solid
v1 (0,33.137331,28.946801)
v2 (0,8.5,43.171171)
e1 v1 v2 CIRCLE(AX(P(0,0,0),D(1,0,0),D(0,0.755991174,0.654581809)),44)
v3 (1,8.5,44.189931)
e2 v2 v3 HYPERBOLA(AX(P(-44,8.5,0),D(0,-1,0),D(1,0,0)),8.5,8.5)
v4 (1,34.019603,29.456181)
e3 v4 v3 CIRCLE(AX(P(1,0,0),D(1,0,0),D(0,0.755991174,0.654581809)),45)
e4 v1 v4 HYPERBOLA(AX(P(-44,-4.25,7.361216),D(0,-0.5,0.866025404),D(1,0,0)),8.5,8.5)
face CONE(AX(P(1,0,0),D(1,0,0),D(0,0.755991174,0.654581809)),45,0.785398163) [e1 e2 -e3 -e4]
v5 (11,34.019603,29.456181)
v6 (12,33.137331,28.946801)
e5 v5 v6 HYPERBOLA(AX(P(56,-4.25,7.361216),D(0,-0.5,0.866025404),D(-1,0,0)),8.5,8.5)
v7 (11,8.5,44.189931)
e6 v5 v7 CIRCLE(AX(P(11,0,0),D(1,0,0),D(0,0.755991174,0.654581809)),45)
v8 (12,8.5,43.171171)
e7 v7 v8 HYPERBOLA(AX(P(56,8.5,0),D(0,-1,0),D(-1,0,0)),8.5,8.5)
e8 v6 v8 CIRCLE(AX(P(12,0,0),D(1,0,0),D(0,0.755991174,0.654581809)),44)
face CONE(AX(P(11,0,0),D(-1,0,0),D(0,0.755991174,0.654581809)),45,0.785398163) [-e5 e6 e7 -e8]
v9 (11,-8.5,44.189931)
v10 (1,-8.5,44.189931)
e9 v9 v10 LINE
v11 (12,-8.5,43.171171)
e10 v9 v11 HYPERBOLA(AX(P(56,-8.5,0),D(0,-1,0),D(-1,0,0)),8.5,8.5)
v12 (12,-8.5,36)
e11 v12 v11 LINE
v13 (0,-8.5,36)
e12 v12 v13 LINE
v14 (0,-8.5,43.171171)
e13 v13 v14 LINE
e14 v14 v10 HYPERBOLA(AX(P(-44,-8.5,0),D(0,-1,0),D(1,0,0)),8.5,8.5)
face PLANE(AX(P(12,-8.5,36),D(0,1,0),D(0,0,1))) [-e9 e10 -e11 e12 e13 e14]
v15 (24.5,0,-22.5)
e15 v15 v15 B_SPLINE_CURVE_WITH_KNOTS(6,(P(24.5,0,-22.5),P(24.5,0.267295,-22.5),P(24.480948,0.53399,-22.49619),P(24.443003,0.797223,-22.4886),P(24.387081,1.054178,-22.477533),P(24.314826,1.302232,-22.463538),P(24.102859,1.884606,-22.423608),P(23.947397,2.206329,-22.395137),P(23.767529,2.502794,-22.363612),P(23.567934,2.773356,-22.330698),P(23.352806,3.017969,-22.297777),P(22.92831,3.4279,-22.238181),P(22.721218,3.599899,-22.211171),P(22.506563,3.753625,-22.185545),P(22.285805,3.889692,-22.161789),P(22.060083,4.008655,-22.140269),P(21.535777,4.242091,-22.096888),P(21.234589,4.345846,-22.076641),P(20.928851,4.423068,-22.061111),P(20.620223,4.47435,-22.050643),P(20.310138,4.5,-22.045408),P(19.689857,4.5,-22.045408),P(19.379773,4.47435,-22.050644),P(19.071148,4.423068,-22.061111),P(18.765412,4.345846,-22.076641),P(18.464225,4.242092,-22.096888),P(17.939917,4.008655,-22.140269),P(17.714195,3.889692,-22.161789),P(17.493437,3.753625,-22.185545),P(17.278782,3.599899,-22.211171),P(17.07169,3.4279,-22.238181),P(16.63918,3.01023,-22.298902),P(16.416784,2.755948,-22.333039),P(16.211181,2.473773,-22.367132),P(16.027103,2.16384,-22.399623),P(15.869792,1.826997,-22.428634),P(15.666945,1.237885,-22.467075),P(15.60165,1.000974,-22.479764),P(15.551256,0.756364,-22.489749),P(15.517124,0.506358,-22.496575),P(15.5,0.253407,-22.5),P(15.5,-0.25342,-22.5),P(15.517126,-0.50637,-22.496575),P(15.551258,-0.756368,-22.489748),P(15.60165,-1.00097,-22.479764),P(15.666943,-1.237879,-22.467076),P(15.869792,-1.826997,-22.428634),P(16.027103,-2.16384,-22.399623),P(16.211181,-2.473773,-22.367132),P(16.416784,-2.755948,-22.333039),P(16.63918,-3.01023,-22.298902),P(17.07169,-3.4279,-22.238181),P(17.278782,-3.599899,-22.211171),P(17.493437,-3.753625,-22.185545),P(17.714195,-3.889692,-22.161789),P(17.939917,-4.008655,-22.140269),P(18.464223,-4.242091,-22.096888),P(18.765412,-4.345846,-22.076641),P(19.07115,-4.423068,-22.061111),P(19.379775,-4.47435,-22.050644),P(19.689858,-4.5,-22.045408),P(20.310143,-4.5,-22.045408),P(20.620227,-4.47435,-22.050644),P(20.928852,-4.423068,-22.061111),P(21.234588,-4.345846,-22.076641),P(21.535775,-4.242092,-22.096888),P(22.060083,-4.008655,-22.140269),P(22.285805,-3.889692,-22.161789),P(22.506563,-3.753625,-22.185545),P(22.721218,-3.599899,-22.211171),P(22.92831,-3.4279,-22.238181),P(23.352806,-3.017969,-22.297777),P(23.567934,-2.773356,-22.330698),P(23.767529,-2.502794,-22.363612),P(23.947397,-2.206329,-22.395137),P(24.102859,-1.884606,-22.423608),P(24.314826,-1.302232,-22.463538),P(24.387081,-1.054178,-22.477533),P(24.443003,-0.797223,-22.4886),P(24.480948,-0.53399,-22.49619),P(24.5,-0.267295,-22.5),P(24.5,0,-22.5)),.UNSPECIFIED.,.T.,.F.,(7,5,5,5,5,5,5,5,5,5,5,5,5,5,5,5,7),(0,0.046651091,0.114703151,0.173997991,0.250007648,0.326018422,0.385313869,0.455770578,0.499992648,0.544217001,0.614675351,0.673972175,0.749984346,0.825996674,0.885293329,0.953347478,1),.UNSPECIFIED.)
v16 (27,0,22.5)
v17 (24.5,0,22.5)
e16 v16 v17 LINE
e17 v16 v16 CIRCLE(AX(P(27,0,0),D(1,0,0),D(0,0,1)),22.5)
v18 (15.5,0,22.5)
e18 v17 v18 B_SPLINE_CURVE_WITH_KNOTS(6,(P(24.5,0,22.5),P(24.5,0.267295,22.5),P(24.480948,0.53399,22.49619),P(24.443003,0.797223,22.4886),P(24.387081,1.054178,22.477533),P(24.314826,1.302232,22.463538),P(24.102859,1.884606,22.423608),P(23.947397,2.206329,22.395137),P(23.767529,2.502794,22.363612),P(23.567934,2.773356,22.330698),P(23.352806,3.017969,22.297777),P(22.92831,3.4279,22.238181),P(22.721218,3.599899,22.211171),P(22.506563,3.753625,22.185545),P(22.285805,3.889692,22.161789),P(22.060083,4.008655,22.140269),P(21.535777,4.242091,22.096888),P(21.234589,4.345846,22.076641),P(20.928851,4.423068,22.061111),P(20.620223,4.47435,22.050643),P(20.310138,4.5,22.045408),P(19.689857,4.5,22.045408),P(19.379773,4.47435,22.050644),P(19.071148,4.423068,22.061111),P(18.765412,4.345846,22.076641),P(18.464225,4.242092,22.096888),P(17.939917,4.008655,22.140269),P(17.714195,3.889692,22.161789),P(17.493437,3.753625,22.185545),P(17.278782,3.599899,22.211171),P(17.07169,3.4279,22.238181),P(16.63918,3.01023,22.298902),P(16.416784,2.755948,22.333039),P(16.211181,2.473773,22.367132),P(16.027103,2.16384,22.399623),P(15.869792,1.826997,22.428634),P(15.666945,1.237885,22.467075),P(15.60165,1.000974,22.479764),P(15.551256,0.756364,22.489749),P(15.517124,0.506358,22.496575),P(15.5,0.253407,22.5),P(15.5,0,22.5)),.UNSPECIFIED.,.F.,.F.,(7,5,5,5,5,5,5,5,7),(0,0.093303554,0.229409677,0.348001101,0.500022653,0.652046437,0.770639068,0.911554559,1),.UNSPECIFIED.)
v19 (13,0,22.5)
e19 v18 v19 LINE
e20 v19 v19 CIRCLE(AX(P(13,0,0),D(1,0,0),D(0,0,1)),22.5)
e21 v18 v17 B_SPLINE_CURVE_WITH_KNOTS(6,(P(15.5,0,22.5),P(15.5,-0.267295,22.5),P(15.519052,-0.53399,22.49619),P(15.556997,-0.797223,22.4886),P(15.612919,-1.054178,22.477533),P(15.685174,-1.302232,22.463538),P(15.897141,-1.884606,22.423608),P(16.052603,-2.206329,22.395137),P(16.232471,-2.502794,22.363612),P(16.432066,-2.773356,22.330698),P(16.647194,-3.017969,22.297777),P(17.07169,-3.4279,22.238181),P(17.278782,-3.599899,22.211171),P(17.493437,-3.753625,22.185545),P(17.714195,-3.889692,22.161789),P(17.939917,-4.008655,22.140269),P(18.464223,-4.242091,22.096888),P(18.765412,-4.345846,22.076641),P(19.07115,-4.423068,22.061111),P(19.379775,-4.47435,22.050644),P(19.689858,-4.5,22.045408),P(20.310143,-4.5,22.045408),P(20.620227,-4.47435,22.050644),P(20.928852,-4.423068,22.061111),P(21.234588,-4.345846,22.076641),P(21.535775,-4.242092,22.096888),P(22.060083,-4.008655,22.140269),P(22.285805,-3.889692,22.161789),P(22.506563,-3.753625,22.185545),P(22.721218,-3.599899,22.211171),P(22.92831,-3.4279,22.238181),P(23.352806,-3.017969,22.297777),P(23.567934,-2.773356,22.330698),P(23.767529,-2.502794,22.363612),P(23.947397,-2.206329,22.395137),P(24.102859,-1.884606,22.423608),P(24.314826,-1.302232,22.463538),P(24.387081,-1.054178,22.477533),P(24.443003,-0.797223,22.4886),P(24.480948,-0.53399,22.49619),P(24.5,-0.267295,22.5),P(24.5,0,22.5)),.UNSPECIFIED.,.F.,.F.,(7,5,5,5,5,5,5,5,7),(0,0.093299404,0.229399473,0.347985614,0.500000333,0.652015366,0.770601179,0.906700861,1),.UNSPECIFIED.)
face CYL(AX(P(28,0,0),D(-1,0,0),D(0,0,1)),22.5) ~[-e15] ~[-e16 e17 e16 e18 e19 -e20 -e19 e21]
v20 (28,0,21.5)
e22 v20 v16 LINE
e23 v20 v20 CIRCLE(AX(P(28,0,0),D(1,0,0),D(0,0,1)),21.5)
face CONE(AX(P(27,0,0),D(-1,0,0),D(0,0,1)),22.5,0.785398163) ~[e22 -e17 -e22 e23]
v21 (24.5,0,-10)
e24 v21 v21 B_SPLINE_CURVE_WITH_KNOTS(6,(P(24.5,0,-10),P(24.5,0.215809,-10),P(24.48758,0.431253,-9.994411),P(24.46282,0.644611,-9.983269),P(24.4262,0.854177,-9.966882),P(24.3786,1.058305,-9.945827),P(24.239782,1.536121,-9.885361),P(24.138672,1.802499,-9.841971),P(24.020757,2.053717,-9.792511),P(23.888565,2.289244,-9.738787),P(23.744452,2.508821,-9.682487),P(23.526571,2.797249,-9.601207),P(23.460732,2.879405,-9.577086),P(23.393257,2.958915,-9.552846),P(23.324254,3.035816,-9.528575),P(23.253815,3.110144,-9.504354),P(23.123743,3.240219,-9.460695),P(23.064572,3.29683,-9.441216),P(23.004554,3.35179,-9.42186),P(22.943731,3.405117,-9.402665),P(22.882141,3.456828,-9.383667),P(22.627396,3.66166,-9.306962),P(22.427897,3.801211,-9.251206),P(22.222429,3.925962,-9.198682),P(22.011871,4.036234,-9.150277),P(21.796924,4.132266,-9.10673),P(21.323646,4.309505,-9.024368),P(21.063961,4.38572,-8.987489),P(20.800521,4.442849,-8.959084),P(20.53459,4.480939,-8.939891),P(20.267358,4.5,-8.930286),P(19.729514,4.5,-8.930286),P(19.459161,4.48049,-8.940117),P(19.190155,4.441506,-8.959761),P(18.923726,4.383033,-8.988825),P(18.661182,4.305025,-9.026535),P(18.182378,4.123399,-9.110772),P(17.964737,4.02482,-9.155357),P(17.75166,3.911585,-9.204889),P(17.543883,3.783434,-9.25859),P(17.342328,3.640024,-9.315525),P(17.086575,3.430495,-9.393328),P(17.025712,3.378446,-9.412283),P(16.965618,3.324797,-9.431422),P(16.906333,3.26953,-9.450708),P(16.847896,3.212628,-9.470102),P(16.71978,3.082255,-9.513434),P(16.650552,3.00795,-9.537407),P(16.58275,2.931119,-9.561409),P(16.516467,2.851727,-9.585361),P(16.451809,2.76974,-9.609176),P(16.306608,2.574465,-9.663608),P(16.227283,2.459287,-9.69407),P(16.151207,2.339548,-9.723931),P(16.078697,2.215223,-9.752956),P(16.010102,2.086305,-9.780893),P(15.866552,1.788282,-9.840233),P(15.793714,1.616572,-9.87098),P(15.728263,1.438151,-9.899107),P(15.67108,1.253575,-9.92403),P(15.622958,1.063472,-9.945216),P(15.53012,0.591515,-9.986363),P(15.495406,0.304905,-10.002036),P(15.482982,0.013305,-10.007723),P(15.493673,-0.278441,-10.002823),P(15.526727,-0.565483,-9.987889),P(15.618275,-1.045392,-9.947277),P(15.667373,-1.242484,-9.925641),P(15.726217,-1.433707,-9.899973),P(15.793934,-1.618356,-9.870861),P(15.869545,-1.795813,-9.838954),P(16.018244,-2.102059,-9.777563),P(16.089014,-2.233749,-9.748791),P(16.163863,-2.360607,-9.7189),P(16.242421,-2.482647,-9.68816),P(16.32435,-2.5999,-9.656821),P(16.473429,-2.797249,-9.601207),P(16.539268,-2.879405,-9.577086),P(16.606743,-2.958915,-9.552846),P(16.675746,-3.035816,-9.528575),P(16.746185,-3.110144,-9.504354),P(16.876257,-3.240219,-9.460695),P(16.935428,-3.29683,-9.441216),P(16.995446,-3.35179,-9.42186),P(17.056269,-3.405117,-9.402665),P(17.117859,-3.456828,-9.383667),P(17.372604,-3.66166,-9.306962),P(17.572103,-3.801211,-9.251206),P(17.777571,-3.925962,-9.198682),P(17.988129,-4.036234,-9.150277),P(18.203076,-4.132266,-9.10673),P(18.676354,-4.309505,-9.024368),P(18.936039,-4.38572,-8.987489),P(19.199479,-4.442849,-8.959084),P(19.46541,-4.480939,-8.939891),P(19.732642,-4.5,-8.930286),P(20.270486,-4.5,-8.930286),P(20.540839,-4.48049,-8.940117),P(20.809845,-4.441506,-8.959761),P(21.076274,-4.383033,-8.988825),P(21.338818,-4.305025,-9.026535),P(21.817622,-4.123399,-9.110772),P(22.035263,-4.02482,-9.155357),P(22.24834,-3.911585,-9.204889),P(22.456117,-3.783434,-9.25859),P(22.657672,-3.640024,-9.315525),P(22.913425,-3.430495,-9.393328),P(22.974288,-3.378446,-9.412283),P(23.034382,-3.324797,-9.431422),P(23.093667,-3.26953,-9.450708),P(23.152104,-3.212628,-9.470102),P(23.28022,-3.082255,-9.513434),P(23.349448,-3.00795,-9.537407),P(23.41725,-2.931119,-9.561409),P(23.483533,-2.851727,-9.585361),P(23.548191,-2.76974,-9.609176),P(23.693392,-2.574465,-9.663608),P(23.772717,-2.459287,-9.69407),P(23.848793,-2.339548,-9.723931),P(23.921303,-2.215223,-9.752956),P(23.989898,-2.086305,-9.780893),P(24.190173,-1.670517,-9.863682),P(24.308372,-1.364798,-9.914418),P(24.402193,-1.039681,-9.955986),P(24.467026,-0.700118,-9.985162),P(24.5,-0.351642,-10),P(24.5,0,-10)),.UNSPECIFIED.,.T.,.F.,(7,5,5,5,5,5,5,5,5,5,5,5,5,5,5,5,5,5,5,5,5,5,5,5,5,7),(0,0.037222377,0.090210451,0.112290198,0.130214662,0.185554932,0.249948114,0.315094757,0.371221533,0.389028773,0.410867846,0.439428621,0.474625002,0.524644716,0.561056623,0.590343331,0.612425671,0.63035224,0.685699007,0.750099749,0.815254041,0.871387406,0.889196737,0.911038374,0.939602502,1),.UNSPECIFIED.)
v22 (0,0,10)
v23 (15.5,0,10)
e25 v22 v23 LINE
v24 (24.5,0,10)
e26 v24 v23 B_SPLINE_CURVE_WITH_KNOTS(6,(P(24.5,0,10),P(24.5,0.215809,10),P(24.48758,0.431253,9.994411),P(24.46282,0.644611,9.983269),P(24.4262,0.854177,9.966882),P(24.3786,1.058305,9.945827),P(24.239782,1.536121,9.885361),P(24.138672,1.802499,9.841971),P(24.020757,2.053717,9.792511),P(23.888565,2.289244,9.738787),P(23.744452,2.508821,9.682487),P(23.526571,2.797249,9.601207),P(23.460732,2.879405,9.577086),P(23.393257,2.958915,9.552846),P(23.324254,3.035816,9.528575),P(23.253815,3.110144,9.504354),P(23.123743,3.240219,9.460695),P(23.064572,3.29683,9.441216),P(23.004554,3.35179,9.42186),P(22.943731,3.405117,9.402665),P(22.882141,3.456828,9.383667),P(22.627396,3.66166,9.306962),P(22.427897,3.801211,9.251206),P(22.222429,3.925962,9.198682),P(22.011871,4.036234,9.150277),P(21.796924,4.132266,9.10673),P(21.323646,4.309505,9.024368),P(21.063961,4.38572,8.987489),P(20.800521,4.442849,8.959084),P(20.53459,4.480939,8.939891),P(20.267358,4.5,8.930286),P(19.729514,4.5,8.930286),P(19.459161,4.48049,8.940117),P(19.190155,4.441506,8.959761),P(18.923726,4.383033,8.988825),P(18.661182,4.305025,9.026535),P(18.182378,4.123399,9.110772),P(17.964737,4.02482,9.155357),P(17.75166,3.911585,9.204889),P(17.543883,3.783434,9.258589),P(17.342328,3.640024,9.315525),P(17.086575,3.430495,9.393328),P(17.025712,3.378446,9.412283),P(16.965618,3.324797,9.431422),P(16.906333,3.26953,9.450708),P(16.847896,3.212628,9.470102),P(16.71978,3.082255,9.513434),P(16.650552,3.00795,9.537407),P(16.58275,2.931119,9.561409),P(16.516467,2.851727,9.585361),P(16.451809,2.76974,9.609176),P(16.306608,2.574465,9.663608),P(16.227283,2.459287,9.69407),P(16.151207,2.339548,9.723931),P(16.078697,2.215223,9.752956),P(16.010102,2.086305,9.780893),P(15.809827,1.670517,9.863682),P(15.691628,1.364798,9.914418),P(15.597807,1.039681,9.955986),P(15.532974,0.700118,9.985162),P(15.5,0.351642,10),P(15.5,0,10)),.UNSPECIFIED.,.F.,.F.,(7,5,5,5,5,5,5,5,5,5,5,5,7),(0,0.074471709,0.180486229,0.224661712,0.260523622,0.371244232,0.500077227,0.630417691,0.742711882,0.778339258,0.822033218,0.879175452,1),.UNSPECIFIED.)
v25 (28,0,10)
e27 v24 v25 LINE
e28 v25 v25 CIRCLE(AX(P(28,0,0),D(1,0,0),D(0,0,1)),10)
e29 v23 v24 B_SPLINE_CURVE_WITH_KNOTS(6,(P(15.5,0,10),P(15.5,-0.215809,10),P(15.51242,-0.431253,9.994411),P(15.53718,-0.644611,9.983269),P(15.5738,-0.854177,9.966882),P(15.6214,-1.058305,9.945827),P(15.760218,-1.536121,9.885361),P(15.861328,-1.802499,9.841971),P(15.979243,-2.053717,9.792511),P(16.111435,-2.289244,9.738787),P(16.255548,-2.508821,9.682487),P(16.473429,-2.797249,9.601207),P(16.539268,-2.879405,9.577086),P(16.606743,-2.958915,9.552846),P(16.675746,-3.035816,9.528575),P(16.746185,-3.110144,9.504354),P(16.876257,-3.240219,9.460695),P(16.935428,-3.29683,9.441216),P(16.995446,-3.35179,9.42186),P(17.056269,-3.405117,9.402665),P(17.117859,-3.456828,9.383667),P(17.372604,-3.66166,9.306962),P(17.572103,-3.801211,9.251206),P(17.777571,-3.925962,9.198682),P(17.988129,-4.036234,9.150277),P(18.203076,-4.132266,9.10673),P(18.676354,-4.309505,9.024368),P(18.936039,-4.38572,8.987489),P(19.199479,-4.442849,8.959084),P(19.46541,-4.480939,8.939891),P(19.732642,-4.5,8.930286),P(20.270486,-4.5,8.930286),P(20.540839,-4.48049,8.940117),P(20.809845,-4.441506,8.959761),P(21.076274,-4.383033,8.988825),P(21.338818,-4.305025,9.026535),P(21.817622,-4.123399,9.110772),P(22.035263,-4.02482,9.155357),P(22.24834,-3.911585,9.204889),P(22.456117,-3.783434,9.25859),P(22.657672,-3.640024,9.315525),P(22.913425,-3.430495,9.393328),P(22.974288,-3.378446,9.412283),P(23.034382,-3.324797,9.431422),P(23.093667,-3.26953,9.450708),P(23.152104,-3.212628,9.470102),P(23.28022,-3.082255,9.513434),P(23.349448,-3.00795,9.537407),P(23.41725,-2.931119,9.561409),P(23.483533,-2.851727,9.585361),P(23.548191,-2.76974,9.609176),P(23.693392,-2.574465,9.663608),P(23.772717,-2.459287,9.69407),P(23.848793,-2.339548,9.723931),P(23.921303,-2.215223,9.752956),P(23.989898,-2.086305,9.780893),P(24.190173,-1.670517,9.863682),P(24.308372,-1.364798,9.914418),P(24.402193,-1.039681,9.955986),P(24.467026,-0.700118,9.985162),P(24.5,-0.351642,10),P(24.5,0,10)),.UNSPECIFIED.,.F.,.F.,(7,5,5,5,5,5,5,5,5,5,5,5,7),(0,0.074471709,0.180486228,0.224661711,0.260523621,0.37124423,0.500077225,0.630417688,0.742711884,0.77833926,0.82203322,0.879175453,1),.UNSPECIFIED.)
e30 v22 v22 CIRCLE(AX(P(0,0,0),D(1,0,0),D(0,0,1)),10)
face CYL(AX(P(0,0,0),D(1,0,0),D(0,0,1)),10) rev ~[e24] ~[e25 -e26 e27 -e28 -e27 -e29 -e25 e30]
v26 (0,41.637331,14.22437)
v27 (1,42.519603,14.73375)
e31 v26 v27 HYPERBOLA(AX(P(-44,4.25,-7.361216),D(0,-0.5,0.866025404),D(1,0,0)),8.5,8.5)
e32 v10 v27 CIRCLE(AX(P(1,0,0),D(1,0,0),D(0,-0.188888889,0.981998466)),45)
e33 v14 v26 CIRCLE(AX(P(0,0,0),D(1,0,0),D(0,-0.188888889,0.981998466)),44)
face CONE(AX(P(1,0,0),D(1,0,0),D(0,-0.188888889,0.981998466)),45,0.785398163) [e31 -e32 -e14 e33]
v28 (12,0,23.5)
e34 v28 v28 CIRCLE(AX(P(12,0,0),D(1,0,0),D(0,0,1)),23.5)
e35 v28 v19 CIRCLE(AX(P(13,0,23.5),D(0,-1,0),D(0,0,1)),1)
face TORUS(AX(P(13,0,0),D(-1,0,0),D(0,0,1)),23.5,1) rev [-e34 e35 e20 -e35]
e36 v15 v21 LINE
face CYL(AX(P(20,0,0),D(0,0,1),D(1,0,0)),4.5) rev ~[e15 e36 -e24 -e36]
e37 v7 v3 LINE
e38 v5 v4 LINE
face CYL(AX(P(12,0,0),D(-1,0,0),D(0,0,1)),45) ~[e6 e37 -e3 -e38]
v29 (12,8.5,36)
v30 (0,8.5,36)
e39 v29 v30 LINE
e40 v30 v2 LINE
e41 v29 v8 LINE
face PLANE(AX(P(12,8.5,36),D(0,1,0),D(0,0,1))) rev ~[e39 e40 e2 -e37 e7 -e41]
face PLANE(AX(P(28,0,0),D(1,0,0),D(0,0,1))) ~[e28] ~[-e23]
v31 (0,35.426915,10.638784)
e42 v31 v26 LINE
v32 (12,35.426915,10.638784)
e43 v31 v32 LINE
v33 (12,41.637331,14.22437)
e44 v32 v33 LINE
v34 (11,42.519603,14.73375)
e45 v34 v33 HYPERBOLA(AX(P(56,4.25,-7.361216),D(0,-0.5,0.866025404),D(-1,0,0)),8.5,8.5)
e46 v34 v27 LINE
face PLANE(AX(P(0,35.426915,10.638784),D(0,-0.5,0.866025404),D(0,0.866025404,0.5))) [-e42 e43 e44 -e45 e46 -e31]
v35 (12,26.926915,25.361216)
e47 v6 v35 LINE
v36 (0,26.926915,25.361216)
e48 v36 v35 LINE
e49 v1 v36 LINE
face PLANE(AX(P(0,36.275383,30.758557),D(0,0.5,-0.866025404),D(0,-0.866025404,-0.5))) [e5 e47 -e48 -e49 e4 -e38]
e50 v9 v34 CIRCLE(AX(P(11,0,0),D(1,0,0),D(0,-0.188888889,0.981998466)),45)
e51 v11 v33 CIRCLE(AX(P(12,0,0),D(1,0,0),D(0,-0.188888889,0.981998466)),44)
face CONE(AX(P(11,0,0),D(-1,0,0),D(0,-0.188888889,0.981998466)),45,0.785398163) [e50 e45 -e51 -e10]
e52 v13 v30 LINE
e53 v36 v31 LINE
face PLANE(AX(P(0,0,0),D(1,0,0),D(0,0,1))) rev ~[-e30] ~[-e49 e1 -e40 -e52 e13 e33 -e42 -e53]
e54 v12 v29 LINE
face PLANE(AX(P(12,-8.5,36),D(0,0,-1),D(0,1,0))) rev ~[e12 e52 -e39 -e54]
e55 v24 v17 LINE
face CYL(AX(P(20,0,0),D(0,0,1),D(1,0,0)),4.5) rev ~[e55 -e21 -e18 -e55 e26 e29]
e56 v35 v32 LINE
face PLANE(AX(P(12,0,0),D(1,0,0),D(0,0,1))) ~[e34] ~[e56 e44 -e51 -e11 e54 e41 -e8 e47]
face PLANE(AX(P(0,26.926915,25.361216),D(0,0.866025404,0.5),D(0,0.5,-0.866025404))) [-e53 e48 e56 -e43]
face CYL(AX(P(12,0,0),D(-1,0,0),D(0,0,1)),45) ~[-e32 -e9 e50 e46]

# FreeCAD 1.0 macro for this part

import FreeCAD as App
import Part
import Sketcher
Q = App.Units.Quantity


def edges_at(feature, points):
    """Names of the edges that pass closest to the given points."""
    edges = feature.Shape.Edges
    near = lambda p: min(range(len(edges)), key=lambda i: edges[i].distToShape(Part.Vertex(*p))[0])
    return sorted({f"Edge{near(p) + 1}" for p in points})


def add_polygon(sketch, points):
    """Adds a closed chain of lines whose ends are joined by coincident constraints."""
    first, n = sketch.GeometryCount, len(points)
    for a, b in zip(points, points[1:] + points[:1]):
        sketch.addGeometry(Part.LineSegment(App.Vector(*a, 0), App.Vector(*b, 0)), False)
    for i in range(n):
        sketch.addConstraint(Sketcher.Constraint("Coincident", first + i, 2, first + (i + 1) % n, 1))

doc = App.newDocument("Part")
body = doc.addObject("PartDesign::Body", "Body")

sketch1 = body.newObject("Sketcher::SketchObject", "Sketch")
sketch1.AttachmentSupport = (doc.getObject("XZ_Plane"), [""])
sketch1.MapMode = "FlatFace"
add_polygon(sketch1, [(0, 45), (0, 10), (28, 10), (28, 22), (12, 22), (12, 45)])
sketch1.addConstraint([
    Sketcher.Constraint("Vertical", 0),
    Sketcher.Constraint("Horizontal", 1),
    Sketcher.Constraint("Vertical", 2),
    Sketcher.Constraint("Horizontal", 3),
    Sketcher.Constraint("Vertical", 4),
    Sketcher.Constraint("Horizontal", 5),
    Sketcher.Constraint("PointOnObject", 0, 2, -2),
    Sketcher.Constraint("DistanceX", 1, 1, 1, 2, 28.0),
    Sketcher.Constraint("DistanceX", 3, 2, 3, 1, 16.0),
    Sketcher.Constraint("DistanceY", 0, 2, 0, 1, 35.0),
    Sketcher.Constraint("DistanceY", 2, 1, 2, 2, 12.5),
    Sketcher.Constraint("DistanceY", -1, 1, 0, 2, 10.0),
])
revolution = body.newObject("PartDesign::Revolution", "Revolution")
revolution.Profile = sketch1
revolution.ReferenceAxis = (sketch1, ["H_Axis"])
revolution.Angle = 360

sketch2 = body.newObject("Sketcher::SketchObject", "Sketch001")
sketch2.AttachmentSupport = (doc.getObject("XY_Plane"), [""])
sketch2.MapMode = "FlatFace"
sketch2.addGeometry(Part.Circle(App.Vector(20, 0, 0), App.Vector(0, 0, 1), 4.5), False)
sketch2.addConstraint([
    Sketcher.Constraint("PointOnObject", 0, 3, -1),
    Sketcher.Constraint("Diameter", 0, 9.0),
    Sketcher.Constraint("DistanceX", -1, 1, 0, 3, 20.0),
])
pocket1 = body.newObject("PartDesign::Pocket", "Pocket")
pocket1.Profile = sketch2
pocket1.Length = 50
pocket1.Midplane = True

sketch3 = body.newObject("Sketcher::SketchObject", "Sketch002")
sketch3.AttachmentSupport = (doc.getObject("YZ_Plane"), [""])
sketch3.MapMode = "FlatFace"
sketch3.AttachmentOffset = App.Placement(App.Vector(0, 0, 12), App.Rotation())
add_polygon(sketch3, [(-8, 50), (-8, 36), (8, 36), (8, 50)])
sketch3.addConstraint([
    Sketcher.Constraint("Vertical", 0),
    Sketcher.Constraint("Horizontal", 1),
    Sketcher.Constraint("Vertical", 2),
    Sketcher.Constraint("Horizontal", 3),
    Sketcher.Constraint("DistanceX", 1, 1, 1, 2, 17.0),
    Sketcher.Constraint("DistanceY", 0, 2, 0, 1, 14.0),
    Sketcher.Constraint("DistanceY", -1, 1, 0, 2, 36.0),
    Sketcher.Constraint("DistanceX", 0, 2, -1, 1, 8.5),
])
pocket2 = body.newObject("PartDesign::Pocket", "Pocket001")
pocket2.Profile = sketch3
pocket2.Length = 25

sketch4 = body.newObject("Sketcher::SketchObject", "Sketch003")
sketch4.AttachmentSupport = (doc.getObject("YZ_Plane"), [""])
sketch4.MapMode = "FlatFace"
add_polygon(sketch4, [(27, 25), (35, 11), (45, 16), (41, 23), (36, 31)])
sketch4.addConstraint([
    Sketcher.Constraint("Perpendicular", 0, 1),
    Sketcher.Constraint("Perpendicular", 1, 2),
    Sketcher.Constraint("Parallel", 2, 3),
    Sketcher.Constraint("Perpendicular", 3, 4),
    Sketcher.Constraint("Equal", 2, 3),
    Sketcher.Constraint("Angle", 0, Q("-60 deg")),
    Sketcher.Constraint("Distance", 0, 17.0),
    Sketcher.Constraint("Distance", 1, 10.794681),
    Sketcher.Constraint("DistanceY", -1, 1, 2, 2, 23.397341),
    Sketcher.Constraint("DistanceX", -1, 1, 0, 2, 35.426915),
])
pocket3 = body.newObject("PartDesign::Pocket", "Pocket002")
pocket3.Profile = sketch4
pocket3.Length = 25
pocket3.Reversed = True
doc.recompute()

chamfer = body.newObject("PartDesign::Chamfer", "Chamfer")
chamfer.Base = (pocket3, edges_at(pocket3, [
    (28, 0, -22.5),
    (12, 22.5, 38.971),
    (0, 22.5, 38.971),
    (0, -22.5, -38.971),
    (12, -22.5, -38.971),
]))
chamfer.Size = 1
doc.recompute()

fillet = body.newObject("PartDesign::Fillet", "Fillet")
fillet.Base = (chamfer, edges_at(chamfer, [(12, 0, -22.5)]))
fillet.Radius = 1

doc.recompute()
